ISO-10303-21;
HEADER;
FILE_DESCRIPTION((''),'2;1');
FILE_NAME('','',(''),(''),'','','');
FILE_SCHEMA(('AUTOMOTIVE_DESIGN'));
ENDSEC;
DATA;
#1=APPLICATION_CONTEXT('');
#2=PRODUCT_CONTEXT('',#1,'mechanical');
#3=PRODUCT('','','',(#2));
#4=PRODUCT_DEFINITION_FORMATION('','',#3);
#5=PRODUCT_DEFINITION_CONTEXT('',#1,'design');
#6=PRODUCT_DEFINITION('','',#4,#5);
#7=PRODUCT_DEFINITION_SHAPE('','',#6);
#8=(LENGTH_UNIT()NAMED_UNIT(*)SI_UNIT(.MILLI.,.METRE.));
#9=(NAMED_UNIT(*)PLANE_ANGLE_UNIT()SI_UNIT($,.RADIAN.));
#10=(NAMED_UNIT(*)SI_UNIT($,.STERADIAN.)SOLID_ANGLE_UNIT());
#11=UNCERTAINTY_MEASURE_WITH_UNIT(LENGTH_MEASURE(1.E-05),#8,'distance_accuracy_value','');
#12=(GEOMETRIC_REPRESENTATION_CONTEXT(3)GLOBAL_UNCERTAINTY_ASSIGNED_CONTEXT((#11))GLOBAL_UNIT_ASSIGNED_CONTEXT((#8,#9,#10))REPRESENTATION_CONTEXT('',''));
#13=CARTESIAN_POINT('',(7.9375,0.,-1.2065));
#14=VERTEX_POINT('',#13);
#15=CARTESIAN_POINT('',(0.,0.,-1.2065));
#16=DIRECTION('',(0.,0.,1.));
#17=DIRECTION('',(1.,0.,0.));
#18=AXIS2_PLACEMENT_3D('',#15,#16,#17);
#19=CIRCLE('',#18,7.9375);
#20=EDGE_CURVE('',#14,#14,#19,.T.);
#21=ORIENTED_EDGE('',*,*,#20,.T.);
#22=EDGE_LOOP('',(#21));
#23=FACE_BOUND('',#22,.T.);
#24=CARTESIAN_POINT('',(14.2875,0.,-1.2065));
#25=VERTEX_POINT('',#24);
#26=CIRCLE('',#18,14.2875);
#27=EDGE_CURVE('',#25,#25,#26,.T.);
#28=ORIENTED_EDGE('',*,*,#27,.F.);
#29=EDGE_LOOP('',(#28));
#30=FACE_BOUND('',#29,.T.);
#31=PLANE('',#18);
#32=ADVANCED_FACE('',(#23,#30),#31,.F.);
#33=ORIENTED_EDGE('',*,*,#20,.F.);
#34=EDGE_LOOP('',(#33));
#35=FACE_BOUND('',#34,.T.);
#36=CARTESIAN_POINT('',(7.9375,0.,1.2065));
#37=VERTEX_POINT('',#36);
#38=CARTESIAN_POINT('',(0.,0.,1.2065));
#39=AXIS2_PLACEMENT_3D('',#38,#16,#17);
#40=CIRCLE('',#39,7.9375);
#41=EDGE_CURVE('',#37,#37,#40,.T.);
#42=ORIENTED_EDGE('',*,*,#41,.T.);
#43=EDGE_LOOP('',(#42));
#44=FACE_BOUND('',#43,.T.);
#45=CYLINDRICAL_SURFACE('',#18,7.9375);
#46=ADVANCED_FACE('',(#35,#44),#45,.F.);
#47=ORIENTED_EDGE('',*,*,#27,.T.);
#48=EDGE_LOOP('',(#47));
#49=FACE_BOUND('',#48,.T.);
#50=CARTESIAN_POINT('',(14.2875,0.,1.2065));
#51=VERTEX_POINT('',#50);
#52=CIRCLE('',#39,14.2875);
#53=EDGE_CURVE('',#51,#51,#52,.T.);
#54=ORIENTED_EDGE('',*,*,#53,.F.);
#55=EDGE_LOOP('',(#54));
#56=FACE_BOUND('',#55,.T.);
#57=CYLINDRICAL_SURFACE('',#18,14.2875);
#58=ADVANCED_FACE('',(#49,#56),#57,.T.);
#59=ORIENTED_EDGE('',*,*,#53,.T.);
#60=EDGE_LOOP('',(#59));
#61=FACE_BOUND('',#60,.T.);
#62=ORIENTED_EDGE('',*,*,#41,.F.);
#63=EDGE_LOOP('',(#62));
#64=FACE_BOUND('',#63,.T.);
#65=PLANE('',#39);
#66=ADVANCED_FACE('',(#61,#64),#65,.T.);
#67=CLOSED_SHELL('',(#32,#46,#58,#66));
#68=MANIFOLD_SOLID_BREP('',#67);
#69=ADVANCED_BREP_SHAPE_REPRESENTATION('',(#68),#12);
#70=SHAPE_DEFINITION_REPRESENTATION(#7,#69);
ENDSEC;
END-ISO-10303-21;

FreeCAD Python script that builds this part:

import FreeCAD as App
import Part
import Sketcher

V = App.Vector
Q = App.Units.Quantity

doc = App.newDocument("Part")
params = doc.addObject("Spreadsheet::Sheet", "Params")
for row, (alias, value) in enumerate([
    ("sketch1_diameter", "1.125 in"),
    ("sketch1_diameter2", "0.625 in"),
    ("pad1_length", "0.0475 in"),
    ("pad1_length2", "0.0475 in"),
], start=1):
    params.set(f"A{row}", alias)
    params.set(f"B{row}", "=" + value)
    params.setAlias(f"B{row}", alias)

body = doc.addObject("PartDesign::Body", "Body")

# Sketch on XY plane
sketch1 = body.newObject("Sketcher::SketchObject", "Sketch")
sketch1.AttachmentSupport = (doc.getObject("XY_Plane"), [""])
sketch1.MapMode = "FlatFace"
sketch1.addGeometry([
    Part.Circle(V(0, 0, 0), V(0, 0, 1), 14),
    Part.Circle(V(0, 0, 0), V(0, 0, 1), 8),
], False)
sketch1.addConstraint([
    Sketcher.Constraint("Coincident", 0, 3, -1, 1),
    Sketcher.Constraint("Coincident", 1, 3, -1, 1),
    Sketcher.Constraint("Diameter", 0, Q("1.125 in")),
    Sketcher.Constraint("Diameter", 1, Q("0.625 in")),
])
sketch1.setExpression("Constraints[2]", "Params.sketch1_diameter")
sketch1.setExpression("Constraints[3]", "Params.sketch1_diameter2")
pad1 = body.newObject("PartDesign::Pad", "Pad")
pad1.Profile = sketch1
pad1.Type = "TwoLengths"
pad1.setExpression("Length", "Params.pad1_length")
pad1.setExpression("Length2", "Params.pad1_length2")

doc.recompute()
